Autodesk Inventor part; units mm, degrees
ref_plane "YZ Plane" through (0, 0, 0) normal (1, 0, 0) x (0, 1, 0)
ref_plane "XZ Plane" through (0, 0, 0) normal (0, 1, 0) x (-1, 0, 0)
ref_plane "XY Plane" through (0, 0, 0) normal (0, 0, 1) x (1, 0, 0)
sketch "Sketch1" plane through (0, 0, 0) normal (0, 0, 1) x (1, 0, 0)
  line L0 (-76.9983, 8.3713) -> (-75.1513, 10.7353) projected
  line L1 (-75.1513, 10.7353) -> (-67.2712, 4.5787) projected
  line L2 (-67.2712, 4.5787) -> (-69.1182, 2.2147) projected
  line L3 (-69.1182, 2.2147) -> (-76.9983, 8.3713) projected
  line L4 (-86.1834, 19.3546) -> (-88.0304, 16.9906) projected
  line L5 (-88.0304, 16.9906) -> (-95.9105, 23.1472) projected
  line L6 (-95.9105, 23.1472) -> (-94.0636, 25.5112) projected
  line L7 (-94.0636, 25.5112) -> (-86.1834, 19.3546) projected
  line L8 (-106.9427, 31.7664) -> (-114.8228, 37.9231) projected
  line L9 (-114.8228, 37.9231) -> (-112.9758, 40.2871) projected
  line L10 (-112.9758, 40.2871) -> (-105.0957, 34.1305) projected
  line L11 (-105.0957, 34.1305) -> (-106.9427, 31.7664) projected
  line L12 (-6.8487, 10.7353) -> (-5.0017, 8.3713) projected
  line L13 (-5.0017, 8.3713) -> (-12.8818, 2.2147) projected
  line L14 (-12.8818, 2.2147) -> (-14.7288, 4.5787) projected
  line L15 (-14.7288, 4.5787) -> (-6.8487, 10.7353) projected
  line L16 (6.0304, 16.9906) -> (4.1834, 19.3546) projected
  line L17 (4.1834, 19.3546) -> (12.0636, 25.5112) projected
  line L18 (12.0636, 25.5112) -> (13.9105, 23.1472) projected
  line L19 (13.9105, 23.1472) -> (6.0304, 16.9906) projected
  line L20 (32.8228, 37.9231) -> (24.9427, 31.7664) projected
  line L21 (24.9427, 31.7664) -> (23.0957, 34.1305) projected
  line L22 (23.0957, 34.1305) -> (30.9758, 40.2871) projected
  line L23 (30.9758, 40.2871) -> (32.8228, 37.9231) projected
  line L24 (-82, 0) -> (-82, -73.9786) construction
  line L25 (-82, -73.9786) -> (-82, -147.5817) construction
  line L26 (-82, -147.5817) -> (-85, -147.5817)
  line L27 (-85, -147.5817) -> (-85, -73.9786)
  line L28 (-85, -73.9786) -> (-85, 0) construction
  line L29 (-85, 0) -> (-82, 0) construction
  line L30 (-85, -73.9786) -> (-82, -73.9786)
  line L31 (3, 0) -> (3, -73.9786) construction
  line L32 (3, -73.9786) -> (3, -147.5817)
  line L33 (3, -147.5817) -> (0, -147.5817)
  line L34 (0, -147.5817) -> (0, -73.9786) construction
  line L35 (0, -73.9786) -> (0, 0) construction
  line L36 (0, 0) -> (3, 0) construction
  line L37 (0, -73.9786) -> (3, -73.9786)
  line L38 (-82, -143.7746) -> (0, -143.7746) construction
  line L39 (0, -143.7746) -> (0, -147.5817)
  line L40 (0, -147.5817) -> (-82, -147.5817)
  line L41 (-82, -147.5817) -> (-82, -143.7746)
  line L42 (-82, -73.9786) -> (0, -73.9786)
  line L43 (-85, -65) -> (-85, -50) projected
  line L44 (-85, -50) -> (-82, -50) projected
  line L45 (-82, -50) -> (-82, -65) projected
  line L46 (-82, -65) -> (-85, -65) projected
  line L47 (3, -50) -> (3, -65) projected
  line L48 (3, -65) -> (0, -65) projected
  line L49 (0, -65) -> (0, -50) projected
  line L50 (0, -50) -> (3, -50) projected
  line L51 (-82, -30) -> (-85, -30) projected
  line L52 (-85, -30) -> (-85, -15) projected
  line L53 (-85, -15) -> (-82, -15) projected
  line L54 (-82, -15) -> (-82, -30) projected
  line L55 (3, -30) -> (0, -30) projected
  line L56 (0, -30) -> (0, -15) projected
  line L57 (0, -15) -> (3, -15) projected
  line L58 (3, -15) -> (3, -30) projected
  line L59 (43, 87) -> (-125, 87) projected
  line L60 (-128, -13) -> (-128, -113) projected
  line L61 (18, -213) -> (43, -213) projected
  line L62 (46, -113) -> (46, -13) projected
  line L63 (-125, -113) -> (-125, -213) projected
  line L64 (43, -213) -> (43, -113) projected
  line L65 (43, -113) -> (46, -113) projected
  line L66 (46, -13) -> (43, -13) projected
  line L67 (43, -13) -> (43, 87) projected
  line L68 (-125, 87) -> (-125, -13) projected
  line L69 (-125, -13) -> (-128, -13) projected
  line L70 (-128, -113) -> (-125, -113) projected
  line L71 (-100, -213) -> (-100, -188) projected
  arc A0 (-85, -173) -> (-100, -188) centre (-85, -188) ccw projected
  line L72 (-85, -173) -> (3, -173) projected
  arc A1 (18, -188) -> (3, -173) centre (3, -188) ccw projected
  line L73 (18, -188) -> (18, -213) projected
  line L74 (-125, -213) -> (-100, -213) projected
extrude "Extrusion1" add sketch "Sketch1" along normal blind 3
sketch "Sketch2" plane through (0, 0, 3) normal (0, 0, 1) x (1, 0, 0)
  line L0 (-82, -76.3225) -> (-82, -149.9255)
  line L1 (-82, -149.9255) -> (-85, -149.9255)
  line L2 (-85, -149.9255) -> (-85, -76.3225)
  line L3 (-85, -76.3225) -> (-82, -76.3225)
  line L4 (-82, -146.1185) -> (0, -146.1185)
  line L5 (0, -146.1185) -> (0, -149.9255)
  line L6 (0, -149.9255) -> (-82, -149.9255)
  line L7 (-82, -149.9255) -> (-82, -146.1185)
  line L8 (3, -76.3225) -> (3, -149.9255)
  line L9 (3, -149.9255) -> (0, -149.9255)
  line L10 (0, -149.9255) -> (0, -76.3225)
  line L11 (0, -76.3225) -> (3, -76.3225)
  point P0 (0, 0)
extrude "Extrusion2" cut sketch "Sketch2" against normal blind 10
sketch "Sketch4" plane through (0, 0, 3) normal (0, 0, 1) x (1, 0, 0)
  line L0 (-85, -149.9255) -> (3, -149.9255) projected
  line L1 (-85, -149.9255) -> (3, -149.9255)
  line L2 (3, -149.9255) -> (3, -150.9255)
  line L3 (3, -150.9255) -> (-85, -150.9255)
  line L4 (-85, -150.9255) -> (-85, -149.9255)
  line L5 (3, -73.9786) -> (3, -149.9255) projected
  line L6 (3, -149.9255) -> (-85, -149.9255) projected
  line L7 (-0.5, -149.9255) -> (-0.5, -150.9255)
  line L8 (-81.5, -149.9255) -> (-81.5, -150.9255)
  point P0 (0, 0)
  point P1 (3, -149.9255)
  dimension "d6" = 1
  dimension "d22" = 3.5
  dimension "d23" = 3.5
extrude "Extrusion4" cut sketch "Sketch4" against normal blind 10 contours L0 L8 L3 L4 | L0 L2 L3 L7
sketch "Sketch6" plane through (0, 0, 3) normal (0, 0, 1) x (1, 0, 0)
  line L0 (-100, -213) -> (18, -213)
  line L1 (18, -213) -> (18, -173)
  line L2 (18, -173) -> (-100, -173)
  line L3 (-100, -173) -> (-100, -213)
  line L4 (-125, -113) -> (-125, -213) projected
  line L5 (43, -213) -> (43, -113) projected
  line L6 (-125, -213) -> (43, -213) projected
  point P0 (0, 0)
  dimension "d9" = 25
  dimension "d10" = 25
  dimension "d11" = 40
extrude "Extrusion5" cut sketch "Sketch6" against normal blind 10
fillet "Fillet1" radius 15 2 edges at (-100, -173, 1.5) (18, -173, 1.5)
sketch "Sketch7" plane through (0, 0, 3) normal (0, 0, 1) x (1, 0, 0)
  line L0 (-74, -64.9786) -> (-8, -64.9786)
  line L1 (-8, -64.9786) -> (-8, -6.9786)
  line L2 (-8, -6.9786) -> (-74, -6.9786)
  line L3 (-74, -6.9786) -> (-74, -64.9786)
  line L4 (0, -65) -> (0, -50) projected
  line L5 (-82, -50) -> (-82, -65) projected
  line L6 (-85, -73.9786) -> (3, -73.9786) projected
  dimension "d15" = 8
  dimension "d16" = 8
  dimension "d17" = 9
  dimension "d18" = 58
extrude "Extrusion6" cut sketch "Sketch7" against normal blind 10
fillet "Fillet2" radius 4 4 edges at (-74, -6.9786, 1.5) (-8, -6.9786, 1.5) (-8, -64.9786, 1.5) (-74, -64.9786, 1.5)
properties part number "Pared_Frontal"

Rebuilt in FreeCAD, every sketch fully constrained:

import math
import FreeCAD as App
import Part
import Sketcher

V = App.Vector
Q = App.Units.Quantity


def edges_at(feature, points):
    """Names of the edges that pass closest to the given points."""
    edges = feature.Shape.Edges
    near = lambda p: min(range(len(edges)), key=lambda i: edges[i].distToShape(Part.Vertex(*p))[0])
    return sorted({f"Edge{near(p) + 1}" for p in points})


def add_polygon(sketch, points):
    """Adds a closed chain of lines whose ends are joined by coincident constraints."""
    first, n = sketch.GeometryCount, len(points)
    for a, b in zip(points, points[1:] + points[:1]):
        sketch.addGeometry(Part.LineSegment(App.Vector(*a, 0), App.Vector(*b, 0)), False)
    for i in range(n):
        sketch.addConstraint(Sketcher.Constraint("Coincident", first + i, 2, first + (i + 1) % n, 1))

doc = App.newDocument("Part")
body = doc.addObject("PartDesign::Body", "Body")

# Sketch on XY plane
sketch1 = body.newObject("Sketcher::SketchObject", "Sketch")
sketch1.AttachmentSupport = (doc.getObject("XY_Plane"), [""])
sketch1.MapMode = "FlatFace"
sketch1.addGeometry(Part.LineSegment(V(43, -13, 0), V(43, 87, 0)), False)  # 0
sketch1.addGeometry(Part.LineSegment(V(43, 87, 0), V(-125, 87, 0)), False)  # 1
sketch1.addGeometry(Part.LineSegment(V(-125, 87, 0), V(-125, -13, 0)), False)  # 2
sketch1.addGeometry(Part.LineSegment(V(-125, -13, 0), V(-128, -13, 0)), False)  # 3
sketch1.addGeometry(Part.LineSegment(V(-128, -13, 0), V(-128, -113, 0)), False)  # 4
sketch1.addGeometry(Part.LineSegment(V(-128, -113, 0), V(-125, -113, 0)), False)  # 5
sketch1.addGeometry(Part.LineSegment(V(-125, -113, 0), V(-125, -213, 0)), False)  # 6
sketch1.addGeometry(Part.LineSegment(V(-125, -213, 0), V(-100, -213, 0)), False)  # 7
sketch1.addGeometry(Part.LineSegment(V(-100, -213, 0), V(-100, -188, 0)), False)  # 8
sketch1.addGeometry(Part.ArcOfCircle(Part.Circle(V(-85, -188, 0), V(0, 0, 1), 15), math.radians(90), math.radians(180)), False)  # 9
sketch1.addGeometry(Part.LineSegment(V(-85, -173, 0), V(3, -173, 0)), False)  # 10
sketch1.addGeometry(Part.ArcOfCircle(Part.Circle(V(3, -188, 0), V(0, 0, 1), 15), math.radians(0), math.radians(90)), False)  # 11
sketch1.addGeometry(Part.LineSegment(V(18, -188, 0), V(18, -213, 0)), False)  # 12
sketch1.addGeometry(Part.LineSegment(V(18, -213, 0), V(43, -213, 0)), False)  # 13
sketch1.addGeometry(Part.LineSegment(V(43, -213, 0), V(43, -113, 0)), False)  # 14
sketch1.addGeometry(Part.LineSegment(V(43, -113, 0), V(46, -113, 0)), False)  # 15
sketch1.addGeometry(Part.LineSegment(V(46, -113, 0), V(46, -13, 0)), False)  # 16
sketch1.addGeometry(Part.LineSegment(V(46, -13, 0), V(43, -13, 0)), False)  # 17
add_polygon(sketch1, [(3, -147.6), (-85, -147.6), (-85, -74), (3, -74)])  # lines 18-21
add_polygon(sketch1, [(-82, -65), (-85, -65), (-85, -50), (-82, -50)])  # lines 22-25
add_polygon(sketch1, [(-82, -15), (-82, -30), (-85, -30), (-85, -15)])  # lines 26-29
add_polygon(sketch1, [(-69.1, 2.2), (-77, 8.4), (-75.2, 10.7), (-67.3, 4.6)])  # lines 30-33
add_polygon(sketch1, [(-105.1, 34.1), (-106.9, 31.8), (-114.8, 37.9), (-113, 40.3)])  # lines 34-37
add_polygon(sketch1, [(-94.1, 25.5), (-86.2, 19.4), (-88, 17), (-95.9, 23.1)])  # lines 38-41
add_polygon(sketch1, [(0, -50), (3, -50), (3, -65), (0, -65)])  # lines 42-45
add_polygon(sketch1, [(3, -15), (3, -30), (0, -30), (0, -15)])  # lines 46-49
add_polygon(sketch1, [(-14.7, 4.6), (-6.8, 10.7), (-5, 8.4), (-12.9, 2.2)])  # lines 50-53
add_polygon(sketch1, [(13.9, 23.1), (6, 17), (4.2, 19.4), (12.1, 25.5)])  # lines 54-57
add_polygon(sketch1, [(31, 40.3), (32.8, 37.9), (24.9, 31.8), (23.1, 34.1)])  # lines 58-61
sketch1.addConstraint([
    Sketcher.Constraint("Coincident", 0, 2, 1, 1),
    Sketcher.Constraint("Coincident", 1, 2, 2, 1),
    Sketcher.Constraint("Coincident", 2, 2, 3, 1),
    Sketcher.Constraint("Coincident", 3, 2, 4, 1),
    Sketcher.Constraint("Coincident", 4, 2, 5, 1),
    Sketcher.Constraint("Coincident", 5, 2, 6, 1),
    Sketcher.Constraint("Coincident", 6, 2, 7, 1),
    Sketcher.Constraint("Coincident", 7, 2, 8, 1),
    Sketcher.Constraint("Tangent", 8, 2, 9, 2),
    Sketcher.Constraint("Tangent", 9, 1, 10, 1),
    Sketcher.Constraint("Tangent", 10, 2, 11, 2),
    Sketcher.Constraint("Tangent", 11, 1, 12, 1),
    Sketcher.Constraint("Coincident", 12, 2, 13, 1),
    Sketcher.Constraint("Coincident", 13, 2, 14, 1),
    Sketcher.Constraint("Coincident", 14, 2, 15, 1),
    Sketcher.Constraint("Coincident", 15, 2, 16, 1),
    Sketcher.Constraint("Coincident", 16, 2, 17, 1),
    Sketcher.Constraint("Coincident", 17, 2, 0, 1),
    Sketcher.Constraint("Vertical", 0),
    Sketcher.Constraint("Horizontal", 1),
    Sketcher.Constraint("Vertical", 2),
    Sketcher.Constraint("Horizontal", 3),
    Sketcher.Constraint("Vertical", 4),
    Sketcher.Constraint("Horizontal", 5),
    Sketcher.Constraint("Vertical", 6),
    Sketcher.Constraint("Horizontal", 7),
    Sketcher.Constraint("Vertical", 8),
    Sketcher.Constraint("Horizontal", 10),
    Sketcher.Constraint("Vertical", 12),
    Sketcher.Constraint("Horizontal", 13),
    Sketcher.Constraint("Vertical", 14),
    Sketcher.Constraint("Horizontal", 15),
    Sketcher.Constraint("Vertical", 16),
    Sketcher.Constraint("Horizontal", 17),
    Sketcher.Constraint("Horizontal", 18),
    Sketcher.Constraint("Vertical", 19),
    Sketcher.Constraint("Horizontal", 20),
    Sketcher.Constraint("Vertical", 21),
    Sketcher.Constraint("Horizontal", 22),
    Sketcher.Constraint("Vertical", 23),
    Sketcher.Constraint("Horizontal", 24),
    Sketcher.Constraint("Vertical", 25),
    Sketcher.Constraint("Vertical", 26),
    Sketcher.Constraint("Horizontal", 27),
    Sketcher.Constraint("Vertical", 28),
    Sketcher.Constraint("Horizontal", 29),
    Sketcher.Constraint("Horizontal", 42),
    Sketcher.Constraint("Vertical", 43),
    Sketcher.Constraint("Horizontal", 44),
    Sketcher.Constraint("Vertical", 45),
    Sketcher.Constraint("Vertical", 46),
    Sketcher.Constraint("Horizontal", 47),
    Sketcher.Constraint("Vertical", 48),
    Sketcher.Constraint("Horizontal", 49),
    Sketcher.Constraint("Equal", 9, 11),
    Sketcher.Constraint("PointOnObject", 44, 2, -2),
    Sketcher.Constraint("PointOnObject", 47, 2, -2),
    Sketcher.Constraint("Perpendicular", 30, 31),
    Sketcher.Constraint("Perpendicular", 31, 32),
    Sketcher.Constraint("Perpendicular", 32, 33),
    Sketcher.Constraint("Parallel", 33, 34),
    Sketcher.Constraint("Perpendicular", 34, 35),
    Sketcher.Constraint("Perpendicular", 35, 36),
    Sketcher.Constraint("Perpendicular", 36, 37),
    Sketcher.Constraint("Parallel", 37, 38),
    Sketcher.Constraint("Perpendicular", 38, 39),
    Sketcher.Constraint("Perpendicular", 39, 40),
    Sketcher.Constraint("Perpendicular", 40, 41),
    Sketcher.Constraint("Perpendicular", 50, 51),
    Sketcher.Constraint("Perpendicular", 51, 52),
    Sketcher.Constraint("Perpendicular", 52, 53),
    Sketcher.Constraint("Perpendicular", 53, 54),
    Sketcher.Constraint("Perpendicular", 54, 55),
    Sketcher.Constraint("Perpendicular", 55, 56),
    Sketcher.Constraint("Perpendicular", 56, 57),
    Sketcher.Constraint("Parallel", 57, 58),
    Sketcher.Constraint("Perpendicular", 58, 59),
    Sketcher.Constraint("Perpendicular", 59, 60),
    Sketcher.Constraint("Perpendicular", 60, 61),
    Sketcher.Constraint("Horizontal", 7, 2, 12, 2),
    Sketcher.Constraint("Horizontal", 5, 2, 14, 2),
    Sketcher.Constraint("Horizontal", 3, 2, 16, 2),
    Sketcher.Constraint("Horizontal", 24, 2, 42, 2),
    Sketcher.Constraint("Horizontal", 25, 2, 43, 2),
    Sketcher.Constraint("Horizontal", 27, 2, 46, 2),
    Sketcher.Constraint("Horizontal", 29, 2, 48, 2),
    Sketcher.Constraint("Horizontal", 31, 2, 50, 2),
    Sketcher.Constraint("Horizontal", 30, 2, 51, 2),
    Sketcher.Constraint("Horizontal", 33, 2, 52, 2),
    Sketcher.Constraint("Horizontal", 39, 2, 54, 2),
    Sketcher.Constraint("Horizontal", 38, 2, 55, 2),
    Sketcher.Constraint("Horizontal", 41, 2, 56, 2),
    Sketcher.Constraint("Horizontal", 35, 2, 58, 2),
    Sketcher.Constraint("Horizontal", 34, 2, 59, 2),
    Sketcher.Constraint("Horizontal", 37, 2, 60, 2),
    Sketcher.Constraint("Vertical", 2, 2, 5, 2),
    Sketcher.Constraint("Vertical", 0, 2, 13, 2),
    Sketcher.Constraint("Vertical", 9, 1, 18, 2),
    Sketcher.Constraint("Vertical", 10, 2, 20, 2),
    Sketcher.Constraint("Vertical", 19, 2, 22, 2),
    Sketcher.Constraint("Vertical", 25, 2, 26, 2),
    Sketcher.Constraint("Vertical", 23, 2, 27, 2),
    Sketcher.Constraint("Vertical", 21, 2, 42, 2),
    Sketcher.Constraint("Vertical", 43, 2, 46, 2),
    Sketcher.Constraint("Equal", 7, 13),
    Sketcher.Constraint("Equal", 5, 15),
    Sketcher.Constraint("Equal", 17, 22),
    Sketcher.Constraint("Equal", 29, 42),
    Sketcher.Constraint("Equal", 2, 4),
    Sketcher.Constraint("Equal", 4, 6),
    Sketcher.Constraint("Equal", 13, 8),
    Sketcher.Constraint("Equal", 25, 26),
    Sketcher.Constraint("Equal", 33, 34),
    Sketcher.Constraint("Equal", 32, 35),
    Sketcher.Constraint("Equal", 37, 38),
    Sketcher.Constraint("Equal", 36, 39),
    Sketcher.Constraint("Equal", 40, 50),
    Sketcher.Constraint("Radius", 9, 15.0),
    Sketcher.Constraint("DistanceX", 1, 2, 1, 1, 168.0),
    Sketcher.Constraint("DistanceX", 3, 2, 3, 1, 3.0),
    Sketcher.Constraint("DistanceX", 7, 1, 7, 2, 25.0),
    Sketcher.Constraint("DistanceY", 0, 1, 0, 2, 100.0),
    Sketcher.Constraint("DistanceY", 23, 1, 23, 2, 15.0),
    Sketcher.Constraint("Angle", 30, Q("142 deg")),
    Sketcher.Constraint("Distance", 30, 10.0),
    Sketcher.Constraint("Distance", 31, 3.0),
    Sketcher.Constraint("DistanceY", 9, 3, -1, 1, 188.0),
    Sketcher.Constraint("DistanceY", 22, 2, -1, 1, 65.0),
    Sketcher.Constraint("DistanceY", 26, 2, -1, 1, 30.0),
    Sketcher.Constraint("DistanceY", 19, 1, 19, 2, 73.603),
    Sketcher.Constraint("DistanceY", -1, 1, 35, 2, 37.923),
    Sketcher.Constraint("DistanceY", 18, 2, -1, 1, 147.5817),
    Sketcher.Constraint("DistanceX", 30, 2, -1, 1, 76.9983),
    Sketcher.Constraint("DistanceY", -1, 1, 30, 2, 8.3713),
    Sketcher.Constraint("DistanceX", 34, 2, -1, 1, 106.9427),
    Sketcher.Constraint("DistanceX", 38, 2, -1, 1, 86.1834),
    Sketcher.Constraint("DistanceY", -1, 1, 38, 2, 19.3546),
    Sketcher.Constraint("DistanceX", 50, 2, -1, 1, 6.8487),
    Sketcher.Constraint("DistanceX", -1, 1, 54, 2, 6.0304),
    Sketcher.Constraint("DistanceX", -1, 1, 58, 2, 32.8228),
])
pad1 = body.newObject("PartDesign::Pad", "Pad")
pad1.Profile = sketch1
pad1.Length = 3

# Sketch on XY plane
sketch2 = body.newObject("Sketcher::SketchObject", "Sketch001")
sketch2.AttachmentSupport = (doc.getObject("XY_Plane"), [""])
sketch2.MapMode = "FlatFace"
sketch2.AttachmentOffset = App.Placement(V(0, 0, 3), App.Rotation())
add_polygon(sketch2, [(-82, -146.1), (-82, -76.3), (-85, -76.3), (-85, -149.9), (3, -149.9), (3, -76.3), (0, -76.3), (0, -146.1)])  # lines 0-7
sketch2.addConstraint([
    Sketcher.Constraint("Vertical", 0),
    Sketcher.Constraint("Horizontal", 1),
    Sketcher.Constraint("Vertical", 2),
    Sketcher.Constraint("Horizontal", 3),
    Sketcher.Constraint("Vertical", 4),
    Sketcher.Constraint("Horizontal", 5),
    Sketcher.Constraint("Vertical", 6),
    Sketcher.Constraint("Horizontal", 7),
    Sketcher.Constraint("PointOnObject", 5, 2, -2),
    Sketcher.Constraint("Horizontal", 1, 2, 4, 2),
    Sketcher.Constraint("Equal", 1, 5),
    Sketcher.Constraint("DistanceX", 1, 2, 1, 1, 3.0),
    Sketcher.Constraint("DistanceX", 3, 1, 3, 2, 88.0),
    Sketcher.Constraint("DistanceY", 0, 1, 0, 2, 69.796),
    Sketcher.Constraint("DistanceY", 2, 2, 2, 1, 73.603),
    Sketcher.Constraint("DistanceY", 0, 2, -1, 1, 76.3225),
])
pocket1 = body.newObject("PartDesign::Pocket", "Pocket")
pocket1.Profile = sketch2
pocket1.Length = 10

# Sketch on XY plane
sketch3 = body.newObject("Sketcher::SketchObject", "Sketch002")
sketch3.AttachmentSupport = (doc.getObject("XY_Plane"), [""])
sketch3.MapMode = "FlatFace"
sketch3.AttachmentOffset = App.Placement(V(0, 0, 3), App.Rotation())
add_polygon(sketch3, [(-81.5, -149.9), (-85, -149.9), (-85, -150.9), (-81.5, -150.9)])  # lines 0-3
add_polygon(sketch3, [(3, -149.9), (-0.5, -149.9), (-0.5, -150.9), (3, -150.9)])  # lines 4-7
sketch3.addConstraint([
    Sketcher.Constraint("Horizontal", 0),
    Sketcher.Constraint("Vertical", 1),
    Sketcher.Constraint("Horizontal", 2),
    Sketcher.Constraint("Vertical", 3),
    Sketcher.Constraint("Horizontal", 4),
    Sketcher.Constraint("Vertical", 5),
    Sketcher.Constraint("Horizontal", 6),
    Sketcher.Constraint("Vertical", 7),
    Sketcher.Constraint("Horizontal", 3, 2, 4, 2),
    Sketcher.Constraint("Horizontal", 2, 2, 5, 2),
    Sketcher.Constraint("Equal", 2, 4),
    Sketcher.Constraint("DistanceY", 1, 2, 1, 1, 1.0),
    Sketcher.Constraint("DistanceX", 0, 2, 0, 1, 3.5),
    Sketcher.Constraint("DistanceX", 0, 2, -1, 1, 85.0),
    Sketcher.Constraint("DistanceX", -1, 1, 6, 2, 3.0),
    Sketcher.Constraint("DistanceY", 0, 2, -1, 1, 149.9255),
])
pocket2 = body.newObject("PartDesign::Pocket", "Pocket001")
pocket2.Profile = sketch3
pocket2.Length = 10

# Sketch on XY plane
sketch4 = body.newObject("Sketcher::SketchObject", "Sketch003")
sketch4.AttachmentSupport = (doc.getObject("XY_Plane"), [""])
sketch4.MapMode = "FlatFace"
sketch4.AttachmentOffset = App.Placement(V(0, 0, 3), App.Rotation())
add_polygon(sketch4, [(-100, -173), (-100, -213), (18, -213), (18, -173)])  # lines 0-3
sketch4.addConstraint([
    Sketcher.Constraint("Vertical", 0),
    Sketcher.Constraint("Horizontal", 1),
    Sketcher.Constraint("Vertical", 2),
    Sketcher.Constraint("Horizontal", 3),
    Sketcher.Constraint("DistanceY", 0, 2, 0, 1, 40.0),
    Sketcher.Constraint("DistanceX", 1, 1, 1, 2, 118.0),
    Sketcher.Constraint("DistanceX", 0, 2, -1, 1, 100.0),
    Sketcher.Constraint("DistanceY", 0, 2, -1, 1, 213.0),
])
pocket3 = body.newObject("PartDesign::Pocket", "Pocket002")
pocket3.Profile = sketch4
pocket3.Length = 10
doc.recompute()

fillet = body.newObject("PartDesign::Fillet", "Fillet")
fillet.Base = (pocket3, edges_at(pocket3, [(-100, -173, 1.5), (18, -173, 1.5)]))
fillet.Radius = 15

# Sketch on XY plane
sketch5 = body.newObject("Sketcher::SketchObject", "Sketch004")
sketch5.AttachmentSupport = (doc.getObject("XY_Plane"), [""])
sketch5.MapMode = "FlatFace"
sketch5.AttachmentOffset = App.Placement(V(0, 0, 3), App.Rotation())
add_polygon(sketch5, [(-74, -7), (-74, -65), (-8, -65), (-8, -7)])  # lines 0-3
sketch5.addConstraint([
    Sketcher.Constraint("Vertical", 0),
    Sketcher.Constraint("Horizontal", 1),
    Sketcher.Constraint("Vertical", 2),
    Sketcher.Constraint("Horizontal", 3),
    Sketcher.Constraint("DistanceY", 0, 2, 0, 1, 58.0),
    Sketcher.Constraint("DistanceX", 1, 2, -1, 1, 8.0),
    Sketcher.Constraint("DistanceX", 1, 1, 1, 2, 66.0),
    Sketcher.Constraint("DistanceY", 0, 2, -1, 1, 64.9786),
])
pocket4 = body.newObject("PartDesign::Pocket", "Pocket003")
pocket4.Profile = sketch5
pocket4.Length = 10
doc.recompute()

fillet2 = body.newObject("PartDesign::Fillet", "Fillet001")
fillet2.Base = (pocket4, edges_at(pocket4, [
    (-74, -6.979, 1.5),
    (-8, -6.979, 1.5),
    (-8, -64.979, 1.5),
    (-74, -64.979, 1.5),
]))
fillet2.Radius = 4

doc.recompute()
